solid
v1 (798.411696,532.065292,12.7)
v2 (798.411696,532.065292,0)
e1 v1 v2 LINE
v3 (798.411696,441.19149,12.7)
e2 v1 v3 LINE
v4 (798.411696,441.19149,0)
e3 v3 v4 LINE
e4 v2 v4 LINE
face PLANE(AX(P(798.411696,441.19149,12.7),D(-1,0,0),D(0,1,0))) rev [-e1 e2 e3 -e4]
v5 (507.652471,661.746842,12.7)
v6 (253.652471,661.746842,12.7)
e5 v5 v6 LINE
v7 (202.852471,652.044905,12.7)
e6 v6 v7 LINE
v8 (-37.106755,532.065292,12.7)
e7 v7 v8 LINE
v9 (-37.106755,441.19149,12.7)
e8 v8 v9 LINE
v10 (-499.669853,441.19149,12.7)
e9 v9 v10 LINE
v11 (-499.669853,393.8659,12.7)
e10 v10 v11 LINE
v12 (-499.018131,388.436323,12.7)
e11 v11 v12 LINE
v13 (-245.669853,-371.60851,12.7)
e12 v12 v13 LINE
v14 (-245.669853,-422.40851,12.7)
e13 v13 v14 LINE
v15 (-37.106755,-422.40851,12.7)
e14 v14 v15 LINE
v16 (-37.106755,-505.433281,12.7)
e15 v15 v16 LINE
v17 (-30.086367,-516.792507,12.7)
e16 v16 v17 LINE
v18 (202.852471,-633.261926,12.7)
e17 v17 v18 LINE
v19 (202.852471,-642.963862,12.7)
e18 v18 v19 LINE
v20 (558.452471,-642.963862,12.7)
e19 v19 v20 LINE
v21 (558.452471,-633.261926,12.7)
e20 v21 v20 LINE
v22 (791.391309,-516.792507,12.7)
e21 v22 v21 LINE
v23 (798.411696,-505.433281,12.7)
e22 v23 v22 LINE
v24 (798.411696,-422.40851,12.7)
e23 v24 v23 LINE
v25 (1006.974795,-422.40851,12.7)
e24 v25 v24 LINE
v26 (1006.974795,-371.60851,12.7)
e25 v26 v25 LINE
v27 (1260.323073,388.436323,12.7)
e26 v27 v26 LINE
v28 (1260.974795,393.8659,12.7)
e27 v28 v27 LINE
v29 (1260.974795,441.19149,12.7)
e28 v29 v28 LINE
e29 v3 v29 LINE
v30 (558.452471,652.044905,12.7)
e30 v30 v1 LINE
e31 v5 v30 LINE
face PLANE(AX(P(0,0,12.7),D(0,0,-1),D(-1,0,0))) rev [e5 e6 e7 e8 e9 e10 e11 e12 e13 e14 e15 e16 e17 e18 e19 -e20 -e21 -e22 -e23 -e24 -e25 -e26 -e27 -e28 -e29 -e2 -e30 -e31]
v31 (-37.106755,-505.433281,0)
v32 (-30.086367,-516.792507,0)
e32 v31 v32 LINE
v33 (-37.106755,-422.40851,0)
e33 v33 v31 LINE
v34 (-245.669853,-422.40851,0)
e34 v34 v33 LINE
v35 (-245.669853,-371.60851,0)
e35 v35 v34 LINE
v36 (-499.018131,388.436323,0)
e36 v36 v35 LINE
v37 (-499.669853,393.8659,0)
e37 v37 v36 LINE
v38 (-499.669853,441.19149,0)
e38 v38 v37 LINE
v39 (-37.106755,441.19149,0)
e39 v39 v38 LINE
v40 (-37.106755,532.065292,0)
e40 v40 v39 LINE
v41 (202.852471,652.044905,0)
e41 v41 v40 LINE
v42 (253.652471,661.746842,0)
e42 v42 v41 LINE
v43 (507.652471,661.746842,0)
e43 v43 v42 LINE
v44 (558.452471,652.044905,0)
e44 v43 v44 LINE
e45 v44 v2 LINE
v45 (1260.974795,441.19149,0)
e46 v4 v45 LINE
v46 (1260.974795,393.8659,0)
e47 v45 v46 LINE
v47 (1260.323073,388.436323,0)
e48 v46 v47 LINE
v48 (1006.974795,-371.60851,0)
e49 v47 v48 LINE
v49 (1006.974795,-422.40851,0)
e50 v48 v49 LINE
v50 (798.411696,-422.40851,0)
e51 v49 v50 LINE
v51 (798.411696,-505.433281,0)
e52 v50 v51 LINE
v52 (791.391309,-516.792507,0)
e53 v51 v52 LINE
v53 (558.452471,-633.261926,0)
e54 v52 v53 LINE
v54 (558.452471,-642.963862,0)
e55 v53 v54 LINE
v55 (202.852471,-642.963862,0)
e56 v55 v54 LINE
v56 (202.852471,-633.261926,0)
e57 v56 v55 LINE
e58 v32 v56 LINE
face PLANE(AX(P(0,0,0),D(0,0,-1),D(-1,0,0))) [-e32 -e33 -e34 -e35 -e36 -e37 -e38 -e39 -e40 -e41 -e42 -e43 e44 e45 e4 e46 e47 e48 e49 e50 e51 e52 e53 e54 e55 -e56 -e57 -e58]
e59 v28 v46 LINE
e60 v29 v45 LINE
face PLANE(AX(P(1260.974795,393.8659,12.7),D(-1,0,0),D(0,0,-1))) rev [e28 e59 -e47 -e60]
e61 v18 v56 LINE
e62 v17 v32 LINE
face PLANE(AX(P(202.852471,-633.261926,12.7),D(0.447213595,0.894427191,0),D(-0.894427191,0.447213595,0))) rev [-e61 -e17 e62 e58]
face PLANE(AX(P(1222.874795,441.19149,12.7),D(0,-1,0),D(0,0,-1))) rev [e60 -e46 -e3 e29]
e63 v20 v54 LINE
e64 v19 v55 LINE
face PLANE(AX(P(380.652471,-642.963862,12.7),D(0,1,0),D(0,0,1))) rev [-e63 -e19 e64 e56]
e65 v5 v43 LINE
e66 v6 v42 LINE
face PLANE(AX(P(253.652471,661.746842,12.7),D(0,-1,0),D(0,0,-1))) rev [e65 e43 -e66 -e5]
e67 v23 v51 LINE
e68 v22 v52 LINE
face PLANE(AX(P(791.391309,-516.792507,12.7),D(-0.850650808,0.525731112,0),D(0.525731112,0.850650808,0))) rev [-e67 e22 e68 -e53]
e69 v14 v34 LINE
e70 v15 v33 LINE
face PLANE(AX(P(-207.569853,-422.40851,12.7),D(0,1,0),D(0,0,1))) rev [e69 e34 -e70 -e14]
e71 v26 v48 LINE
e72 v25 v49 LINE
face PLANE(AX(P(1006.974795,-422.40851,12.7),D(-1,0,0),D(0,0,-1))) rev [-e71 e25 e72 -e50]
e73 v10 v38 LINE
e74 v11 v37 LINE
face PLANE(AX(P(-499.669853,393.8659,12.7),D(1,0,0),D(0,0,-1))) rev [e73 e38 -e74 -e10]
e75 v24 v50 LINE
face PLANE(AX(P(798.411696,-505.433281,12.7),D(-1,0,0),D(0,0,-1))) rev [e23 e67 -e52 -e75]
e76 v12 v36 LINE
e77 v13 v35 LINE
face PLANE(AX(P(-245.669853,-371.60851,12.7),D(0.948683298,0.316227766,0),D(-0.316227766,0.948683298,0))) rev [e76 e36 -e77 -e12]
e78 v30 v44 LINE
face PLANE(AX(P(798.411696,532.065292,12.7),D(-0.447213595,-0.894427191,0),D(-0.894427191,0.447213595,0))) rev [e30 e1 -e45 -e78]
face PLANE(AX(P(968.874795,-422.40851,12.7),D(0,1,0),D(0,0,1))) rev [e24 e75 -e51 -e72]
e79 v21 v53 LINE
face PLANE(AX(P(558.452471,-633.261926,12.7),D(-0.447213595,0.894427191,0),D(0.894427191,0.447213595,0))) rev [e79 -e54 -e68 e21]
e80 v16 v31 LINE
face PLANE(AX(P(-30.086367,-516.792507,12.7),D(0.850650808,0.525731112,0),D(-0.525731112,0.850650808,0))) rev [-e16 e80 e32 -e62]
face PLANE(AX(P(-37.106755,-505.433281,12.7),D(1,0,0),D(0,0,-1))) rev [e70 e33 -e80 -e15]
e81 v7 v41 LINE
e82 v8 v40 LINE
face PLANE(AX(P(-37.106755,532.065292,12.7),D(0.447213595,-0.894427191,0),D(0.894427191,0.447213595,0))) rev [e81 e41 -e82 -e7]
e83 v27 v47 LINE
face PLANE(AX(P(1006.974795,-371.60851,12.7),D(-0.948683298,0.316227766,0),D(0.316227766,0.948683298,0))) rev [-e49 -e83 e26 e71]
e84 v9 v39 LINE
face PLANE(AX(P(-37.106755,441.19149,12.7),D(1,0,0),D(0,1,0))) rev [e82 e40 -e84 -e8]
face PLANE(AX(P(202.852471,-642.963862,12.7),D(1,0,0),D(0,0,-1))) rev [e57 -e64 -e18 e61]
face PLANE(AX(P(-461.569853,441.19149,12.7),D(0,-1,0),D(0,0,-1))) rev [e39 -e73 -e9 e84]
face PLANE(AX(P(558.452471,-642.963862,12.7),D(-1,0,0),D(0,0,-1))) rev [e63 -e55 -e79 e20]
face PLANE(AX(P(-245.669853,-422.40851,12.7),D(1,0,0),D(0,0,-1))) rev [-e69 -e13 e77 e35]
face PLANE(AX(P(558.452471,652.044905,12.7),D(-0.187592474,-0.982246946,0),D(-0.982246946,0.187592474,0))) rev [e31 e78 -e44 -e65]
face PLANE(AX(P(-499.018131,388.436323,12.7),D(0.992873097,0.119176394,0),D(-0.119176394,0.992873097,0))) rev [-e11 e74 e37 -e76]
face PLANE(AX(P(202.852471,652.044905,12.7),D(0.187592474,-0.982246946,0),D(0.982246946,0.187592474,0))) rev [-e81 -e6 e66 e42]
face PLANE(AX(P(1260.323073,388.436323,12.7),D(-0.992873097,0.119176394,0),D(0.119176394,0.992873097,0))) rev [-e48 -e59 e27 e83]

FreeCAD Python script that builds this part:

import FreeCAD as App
import Part
import Sketcher
from FreeCAD import Vector
Q = App.Units.Quantity


def add_polygon(sketch, points):
    """Adds a closed chain of lines whose ends are joined by coincident constraints."""
    first, n = sketch.GeometryCount, len(points)
    for a, b in zip(points, points[1:] + points[:1]):
        sketch.addGeometry(Part.LineSegment(App.Vector(*a, 0), App.Vector(*b, 0)), False)
    for i in range(n):
        sketch.addConstraint(Sketcher.Constraint("Coincident", first + i, 2, first + (i + 1) % n, 1))

doc = App.newDocument("Part")
body = doc.addObject("PartDesign::Body", "Body")

# Sketch on XY plane
sketch1 = body.newObject("Sketcher::SketchObject", "Sketch")
sketch1.AttachmentSupport = (doc.getObject("XY_Plane"), [""])
sketch1.MapMode = "FlatFace"
add_polygon(sketch1, [(-37.106755, -422.40851), (-37.106755, -505.433281), (-30.086367, -516.792507), (202.852471, -633.261926), (202.852471, -642.963862), (380.652471, -642.963862), (380.652471, 661.746842), (253.652471, 661.746842), (202.852471, 652.044905), (-37.106755, 532.065292), (-37.106755, 441.19149), (-499.669853, 441.19149), (-499.669853, 393.8659), (-499.018131, 388.436323), (-245.669853, -371.60851), (-245.669853, -422.40851)])  # lines 0-15
sketch1.addConstraint([
    Sketcher.Constraint("Vertical", 0),
    Sketcher.Constraint("Vertical", 3),
    Sketcher.Constraint("Horizontal", 4),
    Sketcher.Constraint("Vertical", 5),
    Sketcher.Constraint("Horizontal", 6),
    Sketcher.Constraint("Vertical", 9),
    Sketcher.Constraint("Horizontal", 10),
    Sketcher.Constraint("Vertical", 11),
    Sketcher.Constraint("Vertical", 14),
    Sketcher.Constraint("Horizontal", 15),
    Sketcher.Constraint("Vertical", 3, 2, 7, 2),
    Sketcher.Constraint("Vertical", 0, 2, 8, 2),
    Sketcher.Constraint("DistanceX", 4, 1, 4, 2, Q("7 in")),
    Sketcher.Constraint("DistanceX", 6, 2, 6, 1, Q("5 in")),
    Sketcher.Constraint("DistanceY", 14, 2, 14, 1, Q("2 in")),
    Sketcher.Constraint("DistanceX", 10, 2, 10, 1, Q("462.563099 mm")),
    Sketcher.Constraint("DistanceX", 15, 1, 15, 2, Q("208.563099 mm")),
    Sketcher.Constraint("Distance", 13, Q("801.157599 mm")),
    Sketcher.Constraint("DistanceY", 0, 2, 0, 1, Q("83.024771 mm")),
    Sketcher.Constraint("DistanceY", 11, 2, 11, 1, Q("47.32559 mm")),
    Sketcher.Constraint("DistanceY", -1, 1, 11, 2, Q("393.8659 mm")),
    Sketcher.Constraint("DistanceY", 1, 2, 8, 2, Q("1048.857799 mm")),
    Sketcher.Constraint("DistanceX", 12, 2, 7, 2, Q("701.870602 mm")),
    Sketcher.Constraint("Distance", 1, Q("13.35357 mm")),
    Sketcher.Constraint("Distance", 2, Q("260.433538 mm")),
    Sketcher.Constraint("Distance", 8, Q("268.28257 mm")),
    Sketcher.Constraint("Distance", 12, Q("5.46855 mm")),
    Sketcher.Constraint("DistanceY", 3, 2, 3, 1, Q("9.701937 mm")),
    Sketcher.Constraint("DistanceY", 5, 1, 5, 2, Q("1304.710704 mm")),
    Sketcher.Constraint("DistanceY", 9, 2, 9, 1, Q("90.873803 mm")),
    Sketcher.Constraint("DistanceY", 0, 2, -1, 1, Q("505.433281 mm")),
    Sketcher.Constraint("DistanceX", -1, 1, 2, 2, Q("202.852471 mm")),
])
pad1 = body.newObject("PartDesign::Pad", "Pad")
pad1.Profile = sketch1
pad1.Length = Q("0.5 in")
body2 = doc.addObject("PartDesign::Body", "Body001")
doc.recompute()

body2.BaseFeature = body
doc.recompute()

mirroring = doc.addObject("Part::Mirroring", "Mirroring")
mirroring.Source = body
mirroring.Base = Vector(380.652471, 661.746842, 12.7)
mirroring.Normal = Vector(-1, 0, 0)
body3 = doc.addObject("PartDesign::Body", "Body002")
body3.BaseFeature = mirroring
boolean = body2.newObject("PartDesign::Boolean", "Boolean")
boolean.Type = "Fuse"
boolean.addObjects([body3])
doc.recompute()
mirroring.Visibility = False

doc.recompute()
